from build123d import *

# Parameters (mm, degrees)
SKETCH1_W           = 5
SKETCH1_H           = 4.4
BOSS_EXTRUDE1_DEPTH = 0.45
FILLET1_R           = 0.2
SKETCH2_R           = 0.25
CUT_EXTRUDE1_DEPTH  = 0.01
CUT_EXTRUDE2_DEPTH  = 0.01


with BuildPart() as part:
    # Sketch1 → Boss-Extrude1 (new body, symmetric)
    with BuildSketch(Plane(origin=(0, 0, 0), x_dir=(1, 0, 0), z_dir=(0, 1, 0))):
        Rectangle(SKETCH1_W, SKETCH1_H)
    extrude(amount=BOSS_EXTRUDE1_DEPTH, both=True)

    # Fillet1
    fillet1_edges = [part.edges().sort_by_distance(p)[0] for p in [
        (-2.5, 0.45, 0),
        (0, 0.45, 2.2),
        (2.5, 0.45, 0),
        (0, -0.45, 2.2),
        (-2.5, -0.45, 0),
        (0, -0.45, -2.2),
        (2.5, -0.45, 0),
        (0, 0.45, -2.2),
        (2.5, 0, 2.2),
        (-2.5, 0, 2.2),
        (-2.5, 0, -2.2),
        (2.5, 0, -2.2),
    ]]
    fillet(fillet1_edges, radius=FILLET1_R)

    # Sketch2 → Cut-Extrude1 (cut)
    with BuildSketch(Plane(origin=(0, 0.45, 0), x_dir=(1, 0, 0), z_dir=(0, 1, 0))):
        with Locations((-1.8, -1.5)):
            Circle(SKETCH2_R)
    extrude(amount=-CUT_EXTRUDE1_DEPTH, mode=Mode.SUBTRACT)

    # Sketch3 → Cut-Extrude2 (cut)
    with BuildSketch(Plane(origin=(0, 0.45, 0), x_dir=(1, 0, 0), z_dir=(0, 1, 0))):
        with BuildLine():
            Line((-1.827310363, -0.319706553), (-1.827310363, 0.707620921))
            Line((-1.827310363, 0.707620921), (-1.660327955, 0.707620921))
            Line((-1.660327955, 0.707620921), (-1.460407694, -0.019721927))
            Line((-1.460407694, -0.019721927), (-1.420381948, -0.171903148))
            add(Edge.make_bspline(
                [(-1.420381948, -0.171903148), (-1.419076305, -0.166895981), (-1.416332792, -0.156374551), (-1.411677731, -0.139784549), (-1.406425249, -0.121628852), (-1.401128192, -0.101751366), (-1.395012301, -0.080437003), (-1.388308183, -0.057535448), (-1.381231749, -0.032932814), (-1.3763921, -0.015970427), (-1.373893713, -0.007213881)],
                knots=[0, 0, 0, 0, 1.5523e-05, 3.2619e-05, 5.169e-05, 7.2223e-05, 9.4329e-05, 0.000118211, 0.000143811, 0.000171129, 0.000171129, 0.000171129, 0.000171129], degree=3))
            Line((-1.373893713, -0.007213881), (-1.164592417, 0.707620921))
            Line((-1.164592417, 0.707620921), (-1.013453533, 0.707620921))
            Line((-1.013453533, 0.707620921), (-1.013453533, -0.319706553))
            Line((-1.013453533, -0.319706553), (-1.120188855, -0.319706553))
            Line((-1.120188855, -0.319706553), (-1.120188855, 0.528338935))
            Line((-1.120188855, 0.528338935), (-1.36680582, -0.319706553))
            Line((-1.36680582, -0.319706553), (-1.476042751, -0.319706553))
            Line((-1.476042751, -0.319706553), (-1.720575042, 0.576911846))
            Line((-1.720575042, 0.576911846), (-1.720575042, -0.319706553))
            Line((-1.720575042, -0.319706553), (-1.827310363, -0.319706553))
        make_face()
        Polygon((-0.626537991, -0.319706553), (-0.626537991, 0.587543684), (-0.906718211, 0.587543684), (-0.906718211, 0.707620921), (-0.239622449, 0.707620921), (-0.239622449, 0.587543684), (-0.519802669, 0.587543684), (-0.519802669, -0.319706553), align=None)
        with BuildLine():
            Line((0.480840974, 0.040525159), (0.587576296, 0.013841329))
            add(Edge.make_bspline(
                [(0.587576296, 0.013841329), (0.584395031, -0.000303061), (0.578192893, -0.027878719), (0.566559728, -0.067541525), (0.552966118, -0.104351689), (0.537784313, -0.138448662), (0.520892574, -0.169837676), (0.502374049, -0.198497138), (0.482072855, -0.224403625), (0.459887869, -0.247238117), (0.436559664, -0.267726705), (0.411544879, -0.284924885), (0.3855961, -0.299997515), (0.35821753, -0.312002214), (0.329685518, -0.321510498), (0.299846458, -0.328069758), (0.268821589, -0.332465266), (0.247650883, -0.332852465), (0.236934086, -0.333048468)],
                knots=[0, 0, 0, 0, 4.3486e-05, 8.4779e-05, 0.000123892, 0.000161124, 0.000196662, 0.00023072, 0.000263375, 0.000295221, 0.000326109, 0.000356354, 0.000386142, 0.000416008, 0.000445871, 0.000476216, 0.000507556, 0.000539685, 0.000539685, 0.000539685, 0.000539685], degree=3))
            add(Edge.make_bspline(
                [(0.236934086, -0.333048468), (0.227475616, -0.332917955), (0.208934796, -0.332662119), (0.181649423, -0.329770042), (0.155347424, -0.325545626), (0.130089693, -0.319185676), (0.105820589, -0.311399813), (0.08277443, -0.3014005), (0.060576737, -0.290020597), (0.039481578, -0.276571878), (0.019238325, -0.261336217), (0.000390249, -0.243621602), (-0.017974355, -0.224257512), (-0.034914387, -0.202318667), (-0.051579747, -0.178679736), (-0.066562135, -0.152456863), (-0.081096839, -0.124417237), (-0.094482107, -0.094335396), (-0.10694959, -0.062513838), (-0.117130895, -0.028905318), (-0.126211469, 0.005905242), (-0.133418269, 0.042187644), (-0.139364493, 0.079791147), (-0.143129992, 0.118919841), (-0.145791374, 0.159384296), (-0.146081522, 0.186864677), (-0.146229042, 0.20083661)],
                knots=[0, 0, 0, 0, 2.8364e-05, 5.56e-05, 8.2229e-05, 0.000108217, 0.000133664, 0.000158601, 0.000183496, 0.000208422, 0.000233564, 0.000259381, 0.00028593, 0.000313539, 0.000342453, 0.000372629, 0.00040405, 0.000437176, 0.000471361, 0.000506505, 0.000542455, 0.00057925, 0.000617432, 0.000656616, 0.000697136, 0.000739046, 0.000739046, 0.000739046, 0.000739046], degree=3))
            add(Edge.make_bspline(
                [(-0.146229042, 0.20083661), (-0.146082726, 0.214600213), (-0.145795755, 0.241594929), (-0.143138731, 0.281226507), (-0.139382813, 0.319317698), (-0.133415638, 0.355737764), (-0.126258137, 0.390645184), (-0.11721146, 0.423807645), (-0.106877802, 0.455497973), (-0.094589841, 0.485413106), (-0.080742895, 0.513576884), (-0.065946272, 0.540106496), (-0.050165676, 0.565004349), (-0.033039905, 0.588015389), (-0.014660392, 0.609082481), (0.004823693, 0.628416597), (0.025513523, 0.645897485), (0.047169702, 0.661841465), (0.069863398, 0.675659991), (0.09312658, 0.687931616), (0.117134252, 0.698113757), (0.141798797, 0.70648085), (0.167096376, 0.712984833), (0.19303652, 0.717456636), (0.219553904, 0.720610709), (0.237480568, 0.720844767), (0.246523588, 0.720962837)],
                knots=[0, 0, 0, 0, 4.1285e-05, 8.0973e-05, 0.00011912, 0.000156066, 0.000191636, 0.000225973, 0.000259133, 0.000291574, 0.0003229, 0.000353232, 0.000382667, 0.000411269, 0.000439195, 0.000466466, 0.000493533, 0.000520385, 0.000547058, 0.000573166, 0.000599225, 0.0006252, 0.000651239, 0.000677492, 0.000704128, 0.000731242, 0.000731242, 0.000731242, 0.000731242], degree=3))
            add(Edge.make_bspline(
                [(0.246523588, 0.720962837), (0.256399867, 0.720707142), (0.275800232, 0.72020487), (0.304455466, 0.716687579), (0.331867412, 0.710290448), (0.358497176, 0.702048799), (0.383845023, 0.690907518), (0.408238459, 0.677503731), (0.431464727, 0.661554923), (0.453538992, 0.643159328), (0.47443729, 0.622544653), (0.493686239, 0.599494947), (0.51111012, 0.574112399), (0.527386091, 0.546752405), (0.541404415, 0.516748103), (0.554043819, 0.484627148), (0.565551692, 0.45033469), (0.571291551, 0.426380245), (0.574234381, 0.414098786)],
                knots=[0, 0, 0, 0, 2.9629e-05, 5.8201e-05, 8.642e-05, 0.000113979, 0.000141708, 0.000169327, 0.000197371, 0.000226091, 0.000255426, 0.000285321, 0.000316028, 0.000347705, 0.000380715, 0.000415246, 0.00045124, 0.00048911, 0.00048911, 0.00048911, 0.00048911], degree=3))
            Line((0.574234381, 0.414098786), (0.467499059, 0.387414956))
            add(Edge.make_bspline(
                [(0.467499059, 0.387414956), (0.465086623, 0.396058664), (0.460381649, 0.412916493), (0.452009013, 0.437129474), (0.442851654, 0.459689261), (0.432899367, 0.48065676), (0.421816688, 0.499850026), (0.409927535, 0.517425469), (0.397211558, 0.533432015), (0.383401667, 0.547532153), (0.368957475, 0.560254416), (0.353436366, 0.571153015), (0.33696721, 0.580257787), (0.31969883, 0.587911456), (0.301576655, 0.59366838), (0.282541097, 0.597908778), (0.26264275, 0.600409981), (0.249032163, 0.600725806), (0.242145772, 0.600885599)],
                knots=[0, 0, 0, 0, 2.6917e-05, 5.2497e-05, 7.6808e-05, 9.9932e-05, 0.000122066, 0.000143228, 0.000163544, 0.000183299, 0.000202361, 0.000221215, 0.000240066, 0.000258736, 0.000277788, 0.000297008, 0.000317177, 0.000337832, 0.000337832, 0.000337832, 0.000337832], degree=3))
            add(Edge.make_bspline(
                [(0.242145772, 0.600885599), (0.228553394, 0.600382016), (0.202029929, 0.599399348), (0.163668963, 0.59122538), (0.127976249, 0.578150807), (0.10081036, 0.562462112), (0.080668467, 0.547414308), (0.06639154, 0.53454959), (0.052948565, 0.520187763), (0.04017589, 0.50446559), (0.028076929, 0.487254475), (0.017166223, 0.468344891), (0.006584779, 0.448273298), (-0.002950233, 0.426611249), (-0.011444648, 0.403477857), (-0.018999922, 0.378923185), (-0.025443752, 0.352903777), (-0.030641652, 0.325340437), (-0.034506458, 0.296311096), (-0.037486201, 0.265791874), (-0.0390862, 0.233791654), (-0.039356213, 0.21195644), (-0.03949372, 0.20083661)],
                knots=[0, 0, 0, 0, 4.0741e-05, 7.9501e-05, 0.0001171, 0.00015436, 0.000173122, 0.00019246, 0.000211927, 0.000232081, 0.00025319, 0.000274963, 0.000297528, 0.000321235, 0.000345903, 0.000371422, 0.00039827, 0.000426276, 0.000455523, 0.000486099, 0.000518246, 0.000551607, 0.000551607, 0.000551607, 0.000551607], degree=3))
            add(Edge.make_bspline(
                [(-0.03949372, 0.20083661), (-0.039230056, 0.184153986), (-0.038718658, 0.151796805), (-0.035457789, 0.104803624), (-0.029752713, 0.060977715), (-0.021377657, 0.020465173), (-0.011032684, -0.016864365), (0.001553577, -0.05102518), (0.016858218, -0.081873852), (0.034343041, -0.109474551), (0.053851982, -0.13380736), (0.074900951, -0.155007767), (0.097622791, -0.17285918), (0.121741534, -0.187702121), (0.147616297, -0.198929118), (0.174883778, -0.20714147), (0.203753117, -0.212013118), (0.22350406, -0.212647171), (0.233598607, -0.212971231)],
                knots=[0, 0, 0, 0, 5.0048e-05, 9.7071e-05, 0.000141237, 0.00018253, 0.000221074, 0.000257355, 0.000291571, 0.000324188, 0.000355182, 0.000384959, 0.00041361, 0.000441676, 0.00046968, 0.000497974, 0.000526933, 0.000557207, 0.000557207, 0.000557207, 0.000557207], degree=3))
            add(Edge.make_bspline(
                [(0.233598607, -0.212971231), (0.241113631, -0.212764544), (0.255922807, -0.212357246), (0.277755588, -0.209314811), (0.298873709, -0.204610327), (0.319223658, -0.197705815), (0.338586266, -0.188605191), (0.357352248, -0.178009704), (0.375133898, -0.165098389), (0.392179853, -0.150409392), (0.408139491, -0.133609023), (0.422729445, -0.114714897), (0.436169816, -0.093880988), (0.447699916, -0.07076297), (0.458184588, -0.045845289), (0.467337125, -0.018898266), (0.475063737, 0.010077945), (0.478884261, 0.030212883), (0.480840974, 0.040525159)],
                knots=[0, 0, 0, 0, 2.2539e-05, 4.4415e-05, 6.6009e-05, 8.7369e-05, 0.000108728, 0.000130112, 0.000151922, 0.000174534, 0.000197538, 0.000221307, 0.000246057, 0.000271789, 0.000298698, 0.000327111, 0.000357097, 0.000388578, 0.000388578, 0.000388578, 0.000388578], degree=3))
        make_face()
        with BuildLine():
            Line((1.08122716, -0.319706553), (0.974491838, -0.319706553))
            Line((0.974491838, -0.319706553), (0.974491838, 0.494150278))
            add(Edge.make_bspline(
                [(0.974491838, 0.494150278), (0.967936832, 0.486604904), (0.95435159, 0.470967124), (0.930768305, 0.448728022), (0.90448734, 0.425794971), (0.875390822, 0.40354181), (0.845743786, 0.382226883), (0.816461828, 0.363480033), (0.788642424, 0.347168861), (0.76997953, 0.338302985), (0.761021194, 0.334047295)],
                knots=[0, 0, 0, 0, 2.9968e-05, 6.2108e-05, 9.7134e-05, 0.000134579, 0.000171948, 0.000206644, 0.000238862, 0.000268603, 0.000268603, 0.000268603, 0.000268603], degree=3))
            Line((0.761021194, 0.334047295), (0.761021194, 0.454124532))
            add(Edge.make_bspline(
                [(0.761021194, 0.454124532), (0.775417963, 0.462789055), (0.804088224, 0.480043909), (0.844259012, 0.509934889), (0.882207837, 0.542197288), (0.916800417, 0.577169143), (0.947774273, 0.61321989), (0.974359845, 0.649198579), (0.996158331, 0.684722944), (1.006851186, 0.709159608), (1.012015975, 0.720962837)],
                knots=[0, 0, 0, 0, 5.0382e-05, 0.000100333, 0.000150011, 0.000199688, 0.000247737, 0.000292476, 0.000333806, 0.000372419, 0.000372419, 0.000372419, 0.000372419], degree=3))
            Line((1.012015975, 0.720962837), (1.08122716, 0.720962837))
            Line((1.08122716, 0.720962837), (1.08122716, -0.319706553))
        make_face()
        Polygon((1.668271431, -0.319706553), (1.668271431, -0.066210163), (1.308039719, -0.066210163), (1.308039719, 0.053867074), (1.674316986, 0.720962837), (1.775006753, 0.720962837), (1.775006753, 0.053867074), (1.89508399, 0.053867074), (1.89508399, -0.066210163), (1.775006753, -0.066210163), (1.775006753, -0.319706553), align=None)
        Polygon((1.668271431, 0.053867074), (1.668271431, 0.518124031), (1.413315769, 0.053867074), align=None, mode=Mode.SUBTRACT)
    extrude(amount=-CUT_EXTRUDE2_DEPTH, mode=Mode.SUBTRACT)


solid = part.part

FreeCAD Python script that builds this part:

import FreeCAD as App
import Part
import Sketcher
from FreeCAD import Vector
Q = App.Units.Quantity


def add_polygon(sketch, points):
    """Adds a closed chain of lines whose ends are joined by coincident constraints."""
    first, n = sketch.GeometryCount, len(points)
    for a, b in zip(points, points[1:] + points[:1]):
        sketch.addGeometry(Part.LineSegment(App.Vector(*a, 0), App.Vector(*b, 0)), False)
    for i in range(n):
        sketch.addConstraint(Sketcher.Constraint("Coincident", first + i, 2, first + (i + 1) % n, 1))

doc = App.newDocument("Part")
body = doc.addObject("PartDesign::Body", "Body")

# Sketch on XZ plane
sketch1 = doc.addObject("Sketcher::SketchObject", "Sketch")
body.addObject(sketch1)
sketch1.AttachmentSupport = (doc.XZ_Plane, [""])
sketch1.MapMode = "FlatFace"
add_polygon(sketch1, [(-2.5, -2.2), (-2.5, 2.2), (2.5, 2.2), (2.5, -2.2)])  # lines 0-3
sketch1.addConstraint([
    Sketcher.Constraint("Vertical", 0),
    Sketcher.Constraint("Horizontal", 1),
    Sketcher.Constraint("Vertical", 2),
    Sketcher.Constraint("Horizontal", 3),
    Sketcher.Constraint("Symmetric", 0, 2, 2, 2, -1, 1),
    Sketcher.Constraint("DistanceX", 1, 1, 1, 2, Q("5 mm")),
    Sketcher.Constraint("DistanceY", 0, 1, 0, 2, Q("4.4 mm")),
])
pad1 = doc.addObject("PartDesign::Pad", "Pad")
body.addObject(pad1)
pad1.Profile = sketch1
pad1.Length = 0.9
pad1.Midplane = True
doc.recompute()

fillet = doc.addObject("PartDesign::Fillet", "Fillet")
body.addObject(fillet)
fillet.Base = (pad1, ["Edge1"])
fillet.UseAllEdges = True
fillet.Radius = 0.2

# Sketch on XZ plane
sketch2 = doc.addObject("Sketcher::SketchObject", "Sketch001")
body.addObject(sketch2)
sketch2.AttachmentSupport = (doc.XZ_Plane, [""])
sketch2.MapMode = "FlatFace"
sketch2.AttachmentOffset = App.Placement(Vector(0, 0, -0.45), App.Rotation())
sketch2.addGeometry(Part.Circle(Vector(-1.8, 1.5, 0), Vector(0, 0, 1), 0.25), False)
sketch2.addConstraint([
    Sketcher.Constraint("Diameter", 0, Q("0.5 mm")),
    Sketcher.Constraint("DistanceX", 0, 3, -1, 1, Q("1.8 mm")),
    Sketcher.Constraint("DistanceY", -1, 1, 0, 3, Q("1.5 mm")),
])
pocket1 = doc.addObject("PartDesign::Pocket", "Pocket")
body.addObject(pocket1)
pocket1.Profile = sketch2
pocket1.Length = 0.01
pocket1.Reversed = True

# Sketch on XZ plane
sketch3 = doc.addObject("Sketcher::SketchObject", "Sketch002")
body.addObject(sketch3)
sketch3.AttachmentSupport = (doc.XZ_Plane, [""])
sketch3.MapMode = "FlatFace"
sketch3.AttachmentOffset = App.Placement(Vector(0, 0, -0.45), App.Rotation())
sketch3.addGeometry(Part.LineSegment(Vector(-1.82731, -0.707621, 0), Vector(-1.82731, 0.319707, 0)), False)  # 0
sketch3.addGeometry(Part.LineSegment(Vector(-1.82731, 0.319707, 0), Vector(-1.720575, 0.319707, 0)), False)  # 1
sketch3.addGeometry(Part.LineSegment(Vector(-1.720575, 0.319707, 0), Vector(-1.720575, -0.576912, 0)), False)  # 2
sketch3.addGeometry(Part.LineSegment(Vector(-1.720575, -0.576912, 0), Vector(-1.476043, 0.319707, 0)), False)  # 3
sketch3.addGeometry(Part.LineSegment(Vector(-1.476043, 0.319707, 0), Vector(-1.366806, 0.319707, 0)), False)  # 4
sketch3.addGeometry(Part.LineSegment(Vector(-1.366806, 0.319707, 0), Vector(-1.120189, -0.528339, 0)), False)  # 5
sketch3.addGeometry(Part.LineSegment(Vector(-1.120189, -0.528339, 0), Vector(-1.120189, 0.319707, 0)), False)  # 6
sketch3.addGeometry(Part.LineSegment(Vector(-1.120189, 0.319707, 0), Vector(-1.013454, 0.319707, 0)), False)  # 7
sketch3.addGeometry(Part.LineSegment(Vector(-1.013454, 0.319707, 0), Vector(-1.013454, -0.707621, 0)), False)  # 8
sketch3.addGeometry(Part.LineSegment(Vector(-1.013454, -0.707621, 0), Vector(-1.164592, -0.707621, 0)), False)  # 9
sketch3.addGeometry(Part.LineSegment(Vector(-1.164592, -0.707621, 0), Vector(-1.373894, 0.007214, 0)), False)  # 10
sketch3.addGeometry(Part.BSplineCurve([Vector(-1.420382, 0.171903, 0), Vector(-1.419076, 0.166896, 0), Vector(-1.416333, 0.156375, 0), Vector(-1.411678, 0.139785, 0), Vector(-1.406425, 0.121629, 0), Vector(-1.401128, 0.101751, 0), Vector(-1.395012, 0.080437, 0), Vector(-1.388308, 0.057535, 0), Vector(-1.381232, 0.032933, 0), Vector(-1.376392, 0.01597, 0), Vector(-1.373894, 0.007214, 0)], [4, 1, 1, 1, 1, 1, 1, 1, 4], [0, 0.000015523, 0.000032619, 0.00005169, 0.000072223, 0.000094329, 0.000118211, 0.000143811, 0.000171129], False, 3, [1, 1, 1, 1, 1, 1, 1, 1, 1, 1, 1], False), False)  # 11
sketch3.addGeometry(Part.LineSegment(Vector(-1.420382, 0.171903, 0), Vector(-1.460408, 0.019722, 0)), False)  # 12
sketch3.addGeometry(Part.LineSegment(Vector(-1.460408, 0.019722, 0), Vector(-1.660328, -0.707621, 0)), False)  # 13
sketch3.addGeometry(Part.LineSegment(Vector(-1.660328, -0.707621, 0), Vector(-1.82731, -0.707621, 0)), False)  # 14
add_polygon(sketch3, [(-0.626538, -0.587544), (-0.626538, 0.319707), (-0.519803, 0.319707), (-0.519803, -0.587544), (-0.239622, -0.587544), (-0.239622, -0.707621), (-0.906718, -0.707621), (-0.906718, -0.587544)])  # lines 15-22
sketch3.addGeometry(Part.LineSegment(Vector(0.587576, -0.013841, 0), Vector(0.480841, -0.040525, 0)), False)  # 23
sketch3.addGeometry(Part.BSplineCurve([Vector(0.233599, 0.212971, 0), Vector(0.241114, 0.212765, 0), Vector(0.255923, 0.212357, 0), Vector(0.277756, 0.209315, 0), Vector(0.298874, 0.20461, 0), Vector(0.319224, 0.197706, 0), Vector(0.338586, 0.188605, 0), Vector(0.357352, 0.17801, 0), Vector(0.375134, 0.165098, 0), Vector(0.39218, 0.150409, 0), Vector(0.408139, 0.133609, 0), Vector(0.422729, 0.114715, 0), Vector(0.43617, 0.093881, 0), Vector(0.4477, 0.070763, 0), Vector(0.458185, 0.045845, 0), Vector(0.467337, 0.018898, 0), Vector(0.475064, -0.010078, 0), Vector(0.478884, -0.030213, 0), Vector(0.480841, -0.040525, 0)], [4, 1, 1, 1, 1, 1, 1, 1, 1, 1, 1, 1, 1, 1, 1, 1, 4], [0, 0.000022539, 0.000044415, 0.000066009, 0.000087369, 0.000108728, 0.000130112, 0.000151922, 0.000174534, 0.000197538, 0.000221307, 0.000246057, 0.000271789, 0.000298698, 0.000327111, 0.000357097, 0.000388578], False, 3, [1, 1, 1, 1, 1, 1, 1, 1, 1, 1, 1, 1, 1, 1, 1, 1, 1, 1, 1], False), False)  # 24
sketch3.addGeometry(Part.BSplineCurve([Vector(-0.039494, -0.200837, 0), Vector(-0.03923, -0.184154, 0), Vector(-0.038719, -0.151797, 0), Vector(-0.035458, -0.104804, 0), Vector(-0.029753, -0.060978, 0), Vector(-0.021378, -0.020465, 0), Vector(-0.011033, 0.016864, 0), Vector(0.001554, 0.051025, 0), Vector(0.016858, 0.081874, 0), Vector(0.034343, 0.109475, 0), Vector(0.053852, 0.133807, 0), Vector(0.074901, 0.155008, 0), Vector(0.097623, 0.172859, 0), Vector(0.121742, 0.187702, 0), Vector(0.147616, 0.198929, 0), Vector(0.174884, 0.207141, 0), Vector(0.203753, 0.212013, 0), Vector(0.223504, 0.212647, 0), Vector(0.233599, 0.212971, 0)], [4, 1, 1, 1, 1, 1, 1, 1, 1, 1, 1, 1, 1, 1, 1, 1, 4], [0, 0.000050048, 0.000097071, 0.000141237, 0.00018253, 0.000221074, 0.000257355, 0.000291571, 0.000324188, 0.000355182, 0.000384959, 0.00041361, 0.000441676, 0.00046968, 0.000497974, 0.000526933, 0.000557207], False, 3, [1, 1, 1, 1, 1, 1, 1, 1, 1, 1, 1, 1, 1, 1, 1, 1, 1, 1, 1], False), False)  # 25
sketch3.addGeometry(Part.BSplineCurve([Vector(0.242146, -0.600886, 0), Vector(0.228553, -0.600382, 0), Vector(0.20203, -0.599399, 0), Vector(0.163669, -0.591225, 0), Vector(0.127976, -0.578151, 0), Vector(0.10081, -0.562462, 0), Vector(0.080668, -0.547414, 0), Vector(0.066392, -0.53455, 0), Vector(0.052949, -0.520188, 0), Vector(0.040176, -0.504466, 0), Vector(0.028077, -0.487254, 0), Vector(0.017166, -0.468345, 0), Vector(0.006585, -0.448273, 0), Vector(-0.00295, -0.426611, 0), Vector(-0.011445, -0.403478, 0), Vector(-0.019, -0.378923, 0), Vector(-0.025444, -0.352904, 0), Vector(-0.030642, -0.32534, 0), Vector(-0.034506, -0.296311, 0), Vector(-0.037486, -0.265792, 0), Vector(-0.039086, -0.233792, 0), Vector(-0.039356, -0.211956, 0), Vector(-0.039494, -0.200837, 0)], [4, 1, 1, 1, 1, 1, 1, 1, 1, 1, 1, 1, 1, 1, 1, 1, 1, 1, 1, 1, 4], [0, 0.000040741, 0.000079501, 0.0001171, 0.00015436, 0.000173122, 0.00019246, 0.000211927, 0.000232081, 0.00025319, 0.000274963, 0.000297528, 0.000321235, 0.000345903, 0.000371422, 0.00039827, 0.000426276, 0.000455523, 0.000486099, 0.000518246, 0.000551607], False, 3, [1, 1, 1, 1, 1, 1, 1, 1, 1, 1, 1, 1, 1, 1, 1, 1, 1, 1, 1, 1, 1, 1, 1], False), False)  # 26
sketch3.addGeometry(Part.BSplineCurve([Vector(0.467499, -0.387415, 0), Vector(0.465087, -0.396059, 0), Vector(0.460382, -0.412916, 0), Vector(0.452009, -0.437129, 0), Vector(0.442852, -0.459689, 0), Vector(0.432899, -0.480657, 0), Vector(0.421817, -0.49985, 0), Vector(0.409928, -0.517425, 0), Vector(0.397212, -0.533432, 0), Vector(0.383402, -0.547532, 0), Vector(0.368957, -0.560254, 0), Vector(0.353436, -0.571153, 0), Vector(0.336967, -0.580258, 0), Vector(0.319699, -0.587911, 0), Vector(0.301577, -0.593668, 0), Vector(0.282541, -0.597909, 0), Vector(0.262643, -0.60041, 0), Vector(0.249032, -0.600726, 0), Vector(0.242146, -0.600886, 0)], [4, 1, 1, 1, 1, 1, 1, 1, 1, 1, 1, 1, 1, 1, 1, 1, 4], [0, 0.000026917, 0.000052497, 0.000076808, 0.000099932, 0.000122066, 0.000143228, 0.000163544, 0.000183299, 0.000202361, 0.000221215, 0.000240066, 0.000258736, 0.000277788, 0.000297008, 0.000317177, 0.000337832], False, 3, [1, 1, 1, 1, 1, 1, 1, 1, 1, 1, 1, 1, 1, 1, 1, 1, 1, 1, 1], False), False)  # 27
sketch3.addGeometry(Part.LineSegment(Vector(0.467499, -0.387415, 0), Vector(0.574234, -0.414099, 0)), False)  # 28
sketch3.addGeometry(Part.BSplineCurve([Vector(0.246524, -0.720963, 0), Vector(0.2564, -0.720707, 0), Vector(0.2758, -0.720205, 0), Vector(0.304455, -0.716688, 0), Vector(0.331867, -0.71029, 0), Vector(0.358497, -0.702049, 0), Vector(0.383845, -0.690908, 0), Vector(0.408238, -0.677504, 0), Vector(0.431465, -0.661555, 0), Vector(0.453539, -0.643159, 0), Vector(0.474437, -0.622545, 0), Vector(0.493686, -0.599495, 0), Vector(0.51111, -0.574112, 0), Vector(0.527386, -0.546752, 0), Vector(0.541404, -0.516748, 0), Vector(0.554044, -0.484627, 0), Vector(0.565552, -0.450335, 0), Vector(0.571292, -0.42638, 0), Vector(0.574234, -0.414099, 0)], [4, 1, 1, 1, 1, 1, 1, 1, 1, 1, 1, 1, 1, 1, 1, 1, 4], [0, 0.000029629, 0.000058201, 0.00008642, 0.000113979, 0.000141708, 0.000169327, 0.000197371, 0.000226091, 0.000255426, 0.000285321, 0.000316028, 0.000347705, 0.000380715, 0.000415246, 0.00045124, 0.00048911], False, 3, [1, 1, 1, 1, 1, 1, 1, 1, 1, 1, 1, 1, 1, 1, 1, 1, 1, 1, 1], False), False)  # 29
sketch3.addGeometry(Part.BSplineCurve([Vector(-0.146229, -0.200837, 0), Vector(-0.146083, -0.2146, 0), Vector(-0.145796, -0.241595, 0), Vector(-0.143139, -0.281227, 0), Vector(-0.139383, -0.319318, 0), Vector(-0.133416, -0.355738, 0), Vector(-0.126258, -0.390645, 0), Vector(-0.117211, -0.423808, 0), Vector(-0.106878, -0.455498, 0), Vector(-0.09459, -0.485413, 0), Vector(-0.080743, -0.513577, 0), Vector(-0.065946, -0.540106, 0), Vector(-0.050166, -0.565004, 0), Vector(-0.03304, -0.588015, 0), Vector(-0.01466, -0.609082, 0), Vector(0.004824, -0.628417, 0), Vector(0.025514, -0.645897, 0), Vector(0.04717, -0.661841, 0), Vector(0.069863, -0.67566, 0), Vector(0.093127, -0.687932, 0), Vector(0.117134, -0.698114, 0), Vector(0.141799, -0.706481, 0), Vector(0.167096, -0.712985, 0), Vector(0.193037, -0.717457, 0), Vector(0.219554, -0.720611, 0), Vector(0.237481, -0.720845, 0), Vector(0.246524, -0.720963, 0)], [4, 1, 1, 1, 1, 1, 1, 1, 1, 1, 1, 1, 1, 1, 1, 1, 1, 1, 1, 1, 1, 1, 1, 1, 4], [0, 0.000041285, 0.000080973, 0.00011912, 0.000156066, 0.000191636, 0.000225973, 0.000259133, 0.000291574, 0.0003229, 0.000353232, 0.000382667, 0.000411269, 0.000439195, 0.000466466, 0.000493533, 0.000520385, 0.000547058, 0.000573166, 0.000599225, 0.0006252, 0.000651239, 0.000677492, 0.000704128, 0.000731242], False, 3, [1, 1, 1, 1, 1, 1, 1, 1, 1, 1, 1, 1, 1, 1, 1, 1, 1, 1, 1, 1, 1, 1, 1, 1, 1, 1, 1], False), False)  # 30
sketch3.addGeometry(Part.BSplineCurve([Vector(0.236934, 0.333048, 0), Vector(0.227476, 0.332918, 0), Vector(0.208935, 0.332662, 0), Vector(0.181649, 0.32977, 0), Vector(0.155347, 0.325546, 0), Vector(0.13009, 0.319186, 0), Vector(0.105821, 0.3114, 0), Vector(0.082774, 0.301401, 0), Vector(0.060577, 0.290021, 0), Vector(0.039482, 0.276572, 0), Vector(0.019238, 0.261336, 0), Vector(0.00039, 0.243622, 0), Vector(-0.017974, 0.224258, 0), Vector(-0.034914, 0.202319, 0), Vector(-0.05158, 0.17868, 0), Vector(-0.066562, 0.152457, 0), Vector(-0.081097, 0.124417, 0), Vector(-0.094482, 0.094335, 0), Vector(-0.10695, 0.062514, 0), Vector(-0.117131, 0.028905, 0), Vector(-0.126211, -0.005905, 0), Vector(-0.133418, -0.042188, 0), Vector(-0.139364, -0.079791, 0), Vector(-0.14313, -0.11892, 0), Vector(-0.145791, -0.159384, 0), Vector(-0.146082, -0.186865, 0), Vector(-0.146229, -0.200837, 0)], [4, 1, 1, 1, 1, 1, 1, 1, 1, 1, 1, 1, 1, 1, 1, 1, 1, 1, 1, 1, 1, 1, 1, 1, 4], [0, 0.000028364, 0.0000556, 0.000082229, 0.000108217, 0.000133664, 0.000158601, 0.000183496, 0.000208422, 0.000233564, 0.000259381, 0.00028593, 0.000313539, 0.000342453, 0.000372629, 0.00040405, 0.000437176, 0.000471361, 0.000506505, 0.000542455, 0.00057925, 0.000617432, 0.000656616, 0.000697136, 0.000739046], False, 3, [1, 1, 1, 1, 1, 1, 1, 1, 1, 1, 1, 1, 1, 1, 1, 1, 1, 1, 1, 1, 1, 1, 1, 1, 1, 1, 1], False), False)  # 31
sketch3.addGeometry(Part.BSplineCurve([Vector(0.587576, -0.013841, 0), Vector(0.584395, 0.000303, 0), Vector(0.578193, 0.027879, 0), Vector(0.56656, 0.067542, 0), Vector(0.552966, 0.104352, 0), Vector(0.537784, 0.138449, 0), Vector(0.520893, 0.169838, 0), Vector(0.502374, 0.198497, 0), Vector(0.482073, 0.224404, 0), Vector(0.459888, 0.247238, 0), Vector(0.43656, 0.267727, 0), Vector(0.411545, 0.284925, 0), Vector(0.385596, 0.299998, 0), Vector(0.358218, 0.312002, 0), Vector(0.329686, 0.32151, 0), Vector(0.299846, 0.32807, 0), Vector(0.268822, 0.332465, 0), Vector(0.247651, 0.332852, 0), Vector(0.236934, 0.333048, 0)], [4, 1, 1, 1, 1, 1, 1, 1, 1, 1, 1, 1, 1, 1, 1, 1, 4], [0, 0.000043486, 0.000084779, 0.000123892, 0.000161124, 0.000196662, 0.00023072, 0.000263375, 0.000295221, 0.000326109, 0.000356354, 0.000386142, 0.000416008, 0.000445871, 0.000476216, 0.000507556, 0.000539685], False, 3, [1, 1, 1, 1, 1, 1, 1, 1, 1, 1, 1, 1, 1, 1, 1, 1, 1, 1, 1], False), False)  # 32
sketch3.addGeometry(Part.LineSegment(Vector(0.974492, 0.319707, 0), Vector(1.081227, 0.319707, 0)), False)  # 33
sketch3.addGeometry(Part.LineSegment(Vector(1.081227, 0.319707, 0), Vector(1.081227, -0.720963, 0)), False)  # 34
sketch3.addGeometry(Part.LineSegment(Vector(1.081227, -0.720963, 0), Vector(1.012016, -0.720963, 0)), False)  # 35
sketch3.addGeometry(Part.BSplineCurve([Vector(0.761021, -0.454125, 0), Vector(0.775418, -0.462789, 0), Vector(0.804088, -0.480044, 0), Vector(0.844259, -0.509935, 0), Vector(0.882208, -0.542197, 0), Vector(0.9168, -0.577169, 0), Vector(0.947774, -0.61322, 0), Vector(0.97436, -0.649199, 0), Vector(0.996158, -0.684723, 0), Vector(1.006851, -0.70916, 0), Vector(1.012016, -0.720963, 0)], [4, 1, 1, 1, 1, 1, 1, 1, 4], [0, 0.000050382, 0.000100333, 0.000150011, 0.000199688, 0.000247737, 0.000292476, 0.000333806, 0.000372419], False, 3, [1, 1, 1, 1, 1, 1, 1, 1, 1, 1, 1], False), False)  # 36
sketch3.addGeometry(Part.LineSegment(Vector(0.761021, -0.454125, 0), Vector(0.761021, -0.334047, 0)), False)  # 37
sketch3.addGeometry(Part.BSplineCurve([Vector(0.974492, -0.49415, 0), Vector(0.967937, -0.486605, 0), Vector(0.954352, -0.470967, 0), Vector(0.930768, -0.448728, 0), Vector(0.904487, -0.425795, 0), Vector(0.875391, -0.403542, 0), Vector(0.845744, -0.382227, 0), Vector(0.816462, -0.36348, 0), Vector(0.788642, -0.347169, 0), Vector(0.76998, -0.338303, 0), Vector(0.761021, -0.334047, 0)], [4, 1, 1, 1, 1, 1, 1, 1, 4], [0, 0.000029968, 0.000062108, 0.000097134, 0.000134579, 0.000171948, 0.000206644, 0.000238862, 0.000268603], False, 3, [1, 1, 1, 1, 1, 1, 1, 1, 1, 1, 1], False), False)  # 38
sketch3.addGeometry(Part.LineSegment(Vector(0.974492, -0.49415, 0), Vector(0.974492, 0.319707, 0)), False)  # 39
add_polygon(sketch3, [(1.668271, 0.06621), (1.668271, 0.319707), (1.775007, 0.319707), (1.775007, 0.06621), (1.895084, 0.06621), (1.895084, -0.053867), (1.775007, -0.053867), (1.775007, -0.720963), (1.674317, -0.720963), (1.30804, -0.053867), (1.30804, 0.06621)])  # lines 40-50
add_polygon(sketch3, [(1.668271, -0.053867), (1.413316, -0.053867), (1.668271, -0.518124)])  # lines 51-53
sketch3.addConstraint([
    Sketcher.Constraint("Block", 11),
    Sketcher.Constraint("Block", 24),
    Sketcher.Constraint("Block", 25),
    Sketcher.Constraint("Block", 26),
    Sketcher.Constraint("Block", 27),
    Sketcher.Constraint("Block", 29),
    Sketcher.Constraint("Block", 30),
    Sketcher.Constraint("Block", 31),
    Sketcher.Constraint("Block", 32),
    Sketcher.Constraint("Block", 36),
    Sketcher.Constraint("Block", 38),
    Sketcher.Constraint("Coincident", 0, 2, 1, 1),
    Sketcher.Constraint("Coincident", 1, 2, 2, 1),
    Sketcher.Constraint("Coincident", 2, 2, 3, 1),
    Sketcher.Constraint("Coincident", 3, 2, 4, 1),
    Sketcher.Constraint("Coincident", 4, 2, 5, 1),
    Sketcher.Constraint("Coincident", 5, 2, 6, 1),
    Sketcher.Constraint("Coincident", 6, 2, 7, 1),
    Sketcher.Constraint("Coincident", 7, 2, 8, 1),
    Sketcher.Constraint("Coincident", 8, 2, 9, 1),
    Sketcher.Constraint("Coincident", 9, 2, 10, 1),
    Sketcher.Constraint("Coincident", 10, 2, 11, 2),
    Sketcher.Constraint("Coincident", 11, 1, 12, 1),
    Sketcher.Constraint("Coincident", 12, 2, 13, 1),
    Sketcher.Constraint("Coincident", 13, 2, 14, 1),
    Sketcher.Constraint("Coincident", 14, 2, 0, 1),
    Sketcher.Constraint("Coincident", 23, 2, 24, 2),
    Sketcher.Constraint("Coincident", 27, 1, 28, 1),
    Sketcher.Constraint("Coincident", 28, 2, 29, 2),
    Sketcher.Constraint("Coincident", 32, 1, 23, 1),
    Sketcher.Constraint("Coincident", 33, 2, 34, 1),
    Sketcher.Constraint("Coincident", 34, 2, 35, 1),
    Sketcher.Constraint("Coincident", 35, 2, 36, 2),
    Sketcher.Constraint("Coincident", 36, 1, 37, 1),
    Sketcher.Constraint("Coincident", 37, 2, 38, 2),
    Sketcher.Constraint("Coincident", 38, 1, 39, 1),
    Sketcher.Constraint("Coincident", 39, 2, 33, 1),
    Sketcher.Constraint("Vertical", 0),
    Sketcher.Constraint("Horizontal", 1),
    Sketcher.Constraint("Vertical", 2),
    Sketcher.Constraint("Horizontal", 4),
    Sketcher.Constraint("Vertical", 6),
    Sketcher.Constraint("Horizontal", 7),
    Sketcher.Constraint("Vertical", 8),
    Sketcher.Constraint("Horizontal", 9),
    Sketcher.Constraint("Horizontal", 14),
    Sketcher.Constraint("Vertical", 15),
    Sketcher.Constraint("Horizontal", 16),
    Sketcher.Constraint("Vertical", 17),
    Sketcher.Constraint("Horizontal", 18),
    Sketcher.Constraint("Vertical", 19),
    Sketcher.Constraint("Horizontal", 20),
    Sketcher.Constraint("Vertical", 21),
    Sketcher.Constraint("Horizontal", 22),
    Sketcher.Constraint("Horizontal", 33),
    Sketcher.Constraint("Vertical", 34),
    Sketcher.Constraint("Horizontal", 35),
    Sketcher.Constraint("Vertical", 39),
    Sketcher.Constraint("Vertical", 40),
    Sketcher.Constraint("Horizontal", 41),
    Sketcher.Constraint("Vertical", 42),
    Sketcher.Constraint("Horizontal", 43),
    Sketcher.Constraint("Vertical", 44),
    Sketcher.Constraint("Horizontal", 45),
    Sketcher.Constraint("Vertical", 46),
    Sketcher.Constraint("Horizontal", 47),
    Sketcher.Constraint("Vertical", 49),
    Sketcher.Constraint("Horizontal", 50),
    Sketcher.Constraint("Horizontal", 51),
    Sketcher.Constraint("Vertical", 53),
    Sketcher.Constraint("DistanceX", 9, 2, 9, 1, Q("0.151139 mm")),
    Sketcher.Constraint("DistanceX", 18, 1, 18, 2, Q("0.28018 mm")),
    Sketcher.Constraint("DistanceX", 22, 1, 22, 2, Q("0.28018 mm")),
    Sketcher.Constraint("DistanceX", 35, 2, 35, 1, Q("0.069211 mm")),
    Sketcher.Constraint("DistanceX", 47, 2, 47, 1, Q("0.10069 mm")),
    Sketcher.Constraint("DistanceX", 50, 1, 50, 2, Q("0.360232 mm")),
    Sketcher.Constraint("DistanceY", 2, 2, 2, 1, Q("0.896618 mm")),
    Sketcher.Constraint("DistanceY", 15, 1, 15, 2, Q("0.90725 mm")),
    Sketcher.Constraint("DistanceY", 17, 2, 17, 1, Q("0.90725 mm")),
    Sketcher.Constraint("DistanceY", 34, 2, 34, 1, Q("1.040669 mm")),
    Sketcher.Constraint("DistanceX", 12, 2, 4, 2, Q("0.093602 mm")),
    Sketcher.Constraint("DistanceX", 35, 2, 47, 2, Q("0.662301 mm")),
    Sketcher.Constraint("Distance", 13, Q("0.754318 mm")),
    Sketcher.Constraint("DistanceX", 1, 1, 1, 2, Q("0.106735 mm")),
    Sketcher.Constraint("DistanceX", 4, 1, 4, 2, Q("0.109237 mm")),
    Sketcher.Constraint("DistanceX", 7, 1, 7, 2, Q("0.106735 mm")),
    Sketcher.Constraint("DistanceX", 14, 2, 14, 1, Q("0.166982 mm")),
    Sketcher.Constraint("DistanceX", 16, 1, 16, 2, Q("0.106735 mm")),
    Sketcher.Constraint("DistanceX", 41, 1, 41, 2, Q("0.106735 mm")),
    Sketcher.Constraint("DistanceX", 43, 1, 43, 2, Q("0.120077 mm")),
    Sketcher.Constraint("DistanceX", 45, 2, 45, 1, Q("0.120077 mm")),
    Sketcher.Constraint("DistanceX", 51, 2, 51, 1, Q("0.254956 mm")),
    Sketcher.Constraint("DistanceY", 0, 1, 0, 2, Q("1.027327 mm")),
    Sketcher.Constraint("DistanceY", 6, 1, 6, 2, Q("0.848045 mm")),
    Sketcher.Constraint("DistanceY", 8, 2, 8, 1, Q("1.027327 mm")),
    Sketcher.Constraint("DistanceY", 19, 2, 19, 1, Q("0.120077 mm")),
    Sketcher.Constraint("DistanceY", 40, 1, 40, 2, Q("0.253496 mm")),
    Sketcher.Constraint("DistanceY", 42, 2, 42, 1, Q("0.253496 mm")),
    Sketcher.Constraint("DistanceY", 44, 2, 44, 1, Q("0.120077 mm")),
    Sketcher.Constraint("DistanceY", 46, 2, 46, 1, Q("0.667096 mm")),
    Sketcher.Constraint("DistanceY", 49, 1, 49, 2, Q("0.120077 mm")),
    Sketcher.Constraint("DistanceY", 53, 1, 53, 2, Q("0.464257 mm")),
    Sketcher.Constraint("DistanceX", 0, 2, -1, 1, Q("1.82731 mm")),
    Sketcher.Constraint("DistanceY", 2, 2, -1, 1, Q("0.576912 mm")),
    Sketcher.Constraint("DistanceX", 5, 2, -1, 1, Q("1.120189 mm")),
    Sketcher.Constraint("DistanceY", 5, 2, -1, 1, Q("0.528339 mm")),
    Sketcher.Constraint("DistanceY", -1, 1, 12, 2, Q("0.019722 mm")),
    Sketcher.Constraint("DistanceY", 19, 2, -1, 1, Q("0.707621 mm")),
    Sketcher.Constraint("DistanceX", 20, 2, -1, 1, Q("0.906718 mm")),
    Sketcher.Constraint("DistanceY", -1, 1, 42, 2, Q("0.06621 mm")),
    Sketcher.Constraint("DistanceX", -1, 1, 52, 2, Q("1.668271 mm")),
    Sketcher.Constraint("DistanceY", 2, 2, 3, 2, Q("0.896618 mm")),
    Sketcher.Constraint("DistanceY", 47, 2, 52, 2, Q("0.202839 mm")),
])
pocket2 = doc.addObject("PartDesign::Pocket", "Pocket001")
body.addObject(pocket2)
pocket2.Profile = sketch3
pocket2.Length = 0.01
pocket2.Reversed = True

doc.recompute()
